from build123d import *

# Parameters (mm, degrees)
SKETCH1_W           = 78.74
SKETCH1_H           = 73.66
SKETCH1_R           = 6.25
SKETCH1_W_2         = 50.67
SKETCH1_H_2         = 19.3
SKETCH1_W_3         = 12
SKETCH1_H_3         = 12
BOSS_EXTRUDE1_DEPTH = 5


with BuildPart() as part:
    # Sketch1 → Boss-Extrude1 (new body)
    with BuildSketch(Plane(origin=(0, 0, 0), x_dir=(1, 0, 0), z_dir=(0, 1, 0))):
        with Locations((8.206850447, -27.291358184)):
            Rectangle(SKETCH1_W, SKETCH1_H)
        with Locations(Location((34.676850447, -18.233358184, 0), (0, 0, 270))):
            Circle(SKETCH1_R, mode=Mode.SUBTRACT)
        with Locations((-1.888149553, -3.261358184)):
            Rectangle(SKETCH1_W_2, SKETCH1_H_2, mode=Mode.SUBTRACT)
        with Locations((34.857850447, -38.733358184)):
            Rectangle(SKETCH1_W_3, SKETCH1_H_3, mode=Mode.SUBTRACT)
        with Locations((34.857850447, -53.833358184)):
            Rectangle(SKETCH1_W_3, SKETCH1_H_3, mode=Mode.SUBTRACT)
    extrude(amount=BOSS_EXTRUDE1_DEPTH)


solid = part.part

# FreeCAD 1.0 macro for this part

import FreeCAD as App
import Part
import Sketcher

V = App.Vector
Q = App.Units.Quantity

doc = App.newDocument("Part")
body = doc.addObject("PartDesign::Body", "Body")

# Sketch on XZ plane
sketch1 = doc.addObject("Sketcher::SketchObject", "Sketch")
body.addObject(sketch1)
sketch1.AttachmentSupport = (doc.XZ_Plane, [""])
sketch1.MapMode = "FlatFace"
sketch1.addGeometry([
    Part.LineSegment(V(-31, -10, 0), V(-31, 64, 0)),  # 0
    Part.LineSegment(V(-31, 64, 0), V(48, 64, 0)),  # 1
    Part.LineSegment(V(48, 64, 0), V(48, -10, 0)),  # 2
    Part.LineSegment(V(48, -10, 0), V(-31, -10, 0)),  # 3
    Part.LineSegment(V(41, 60, 0), V(29, 60, 0)),  # 4
    Part.LineSegment(V(29, 60, 0), V(29, 48, 0)),  # 5
    Part.LineSegment(V(29, 48, 0), V(41, 48, 0)),  # 6
    Part.LineSegment(V(41, 48, 0), V(41, 60, 0)),  # 7
    Part.LineSegment(V(41, 45, 0), V(29, 45, 0)),  # 8
    Part.LineSegment(V(29, 45, 0), V(29, 33, 0)),  # 9
    Part.LineSegment(V(29, 33, 0), V(41, 33, 0)),  # 10
    Part.LineSegment(V(41, 33, 0), V(41, 45, 0)),  # 11
    Part.LineSegment(V(23, 13, 0), V(-27, 13, 0)),  # 12
    Part.LineSegment(V(-27, 13, 0), V(-27, -6, 0)),  # 13
    Part.LineSegment(V(-27, -6, 0), V(23, -6, 0)),  # 14
    Part.LineSegment(V(23, -6, 0), V(23, 13, 0)),  # 15
    Part.Circle(V(35, 18, 0), V(0, 0, 1), 6),  # 16
], False)
sketch1.addConstraint([
    Sketcher.Constraint("Coincident", 0, 2, 1, 1),
    Sketcher.Constraint("Coincident", 1, 2, 2, 1),
    Sketcher.Constraint("Coincident", 2, 2, 3, 1),
    Sketcher.Constraint("Coincident", 3, 2, 0, 1),
    Sketcher.Constraint("Coincident", 4, 2, 5, 1),
    Sketcher.Constraint("Coincident", 5, 2, 6, 1),
    Sketcher.Constraint("Coincident", 6, 2, 7, 1),
    Sketcher.Constraint("Coincident", 7, 2, 4, 1),
    Sketcher.Constraint("Coincident", 8, 2, 9, 1),
    Sketcher.Constraint("Coincident", 9, 2, 10, 1),
    Sketcher.Constraint("Coincident", 10, 2, 11, 1),
    Sketcher.Constraint("Coincident", 11, 2, 8, 1),
    Sketcher.Constraint("Coincident", 12, 2, 13, 1),
    Sketcher.Constraint("Coincident", 13, 2, 14, 1),
    Sketcher.Constraint("Coincident", 14, 2, 15, 1),
    Sketcher.Constraint("Coincident", 15, 2, 12, 1),
    Sketcher.Constraint("Vertical", 0),
    Sketcher.Constraint("Horizontal", 1),
    Sketcher.Constraint("Vertical", 2),
    Sketcher.Constraint("Horizontal", 3),
    Sketcher.Constraint("Horizontal", 4),
    Sketcher.Constraint("Vertical", 5),
    Sketcher.Constraint("Horizontal", 6),
    Sketcher.Constraint("Vertical", 7),
    Sketcher.Constraint("Horizontal", 8),
    Sketcher.Constraint("Vertical", 9),
    Sketcher.Constraint("Horizontal", 10),
    Sketcher.Constraint("Vertical", 11),
    Sketcher.Constraint("Horizontal", 12),
    Sketcher.Constraint("Vertical", 13),
    Sketcher.Constraint("Horizontal", 14),
    Sketcher.Constraint("Vertical", 15),
    Sketcher.Constraint("Vertical", 5, 2, 8, 2),
    Sketcher.Constraint("Vertical", 7, 2, 10, 2),
    Sketcher.Constraint("Equal", 10, 5),
    Sketcher.Constraint("Equal", 7, 9),
    Sketcher.Constraint("Diameter", 16, Q("12.5 mm")),
    Sketcher.Constraint("DistanceX", 4, 2, 4, 1, Q("12 mm")),
    Sketcher.Constraint("DistanceY", 13, 2, 13, 1, Q("19.3 mm")),
    Sketcher.Constraint("DistanceX", 1, 1, 1, 2, Q("78.74 mm")),
    Sketcher.Constraint("DistanceX", 12, 2, 12, 1, Q("50.67 mm")),
    Sketcher.Constraint("DistanceY", 0, 1, 0, 2, Q("73.66 mm")),
    Sketcher.Constraint("DistanceX", 16, 3, 1, 2, Q("12.9 mm")),
    Sketcher.Constraint("DistanceY", 16, 3, 4, 2, Q("41.6 mm")),
    Sketcher.Constraint("DistanceY", 8, 2, 5, 2, Q("3.1 mm")),
    Sketcher.Constraint("DistanceX", 12, 2, 16, 3, Q("61.9 mm")),
    Sketcher.Constraint("DistanceY", 3, 2, 12, 2, Q("22.45 mm")),
    Sketcher.Constraint("DistanceY", 16, 3, 0, 2, Q("45.888 mm")),
    Sketcher.Constraint("DistanceX", 4, 2, 1, 2, Q("18.719 mm")),
    Sketcher.Constraint("DistanceX", -1, 1, 16, 3, Q("34.67685 mm")),
    Sketcher.Constraint("DistanceY", -1, 1, 16, 3, Q("18.233358 mm")),
])
pad1 = doc.addObject("PartDesign::Pad", "Pad")
body.addObject(pad1)
pad1.Profile = sketch1
pad1.Length = 5
pad1.Reversed = True

doc.recompute()
